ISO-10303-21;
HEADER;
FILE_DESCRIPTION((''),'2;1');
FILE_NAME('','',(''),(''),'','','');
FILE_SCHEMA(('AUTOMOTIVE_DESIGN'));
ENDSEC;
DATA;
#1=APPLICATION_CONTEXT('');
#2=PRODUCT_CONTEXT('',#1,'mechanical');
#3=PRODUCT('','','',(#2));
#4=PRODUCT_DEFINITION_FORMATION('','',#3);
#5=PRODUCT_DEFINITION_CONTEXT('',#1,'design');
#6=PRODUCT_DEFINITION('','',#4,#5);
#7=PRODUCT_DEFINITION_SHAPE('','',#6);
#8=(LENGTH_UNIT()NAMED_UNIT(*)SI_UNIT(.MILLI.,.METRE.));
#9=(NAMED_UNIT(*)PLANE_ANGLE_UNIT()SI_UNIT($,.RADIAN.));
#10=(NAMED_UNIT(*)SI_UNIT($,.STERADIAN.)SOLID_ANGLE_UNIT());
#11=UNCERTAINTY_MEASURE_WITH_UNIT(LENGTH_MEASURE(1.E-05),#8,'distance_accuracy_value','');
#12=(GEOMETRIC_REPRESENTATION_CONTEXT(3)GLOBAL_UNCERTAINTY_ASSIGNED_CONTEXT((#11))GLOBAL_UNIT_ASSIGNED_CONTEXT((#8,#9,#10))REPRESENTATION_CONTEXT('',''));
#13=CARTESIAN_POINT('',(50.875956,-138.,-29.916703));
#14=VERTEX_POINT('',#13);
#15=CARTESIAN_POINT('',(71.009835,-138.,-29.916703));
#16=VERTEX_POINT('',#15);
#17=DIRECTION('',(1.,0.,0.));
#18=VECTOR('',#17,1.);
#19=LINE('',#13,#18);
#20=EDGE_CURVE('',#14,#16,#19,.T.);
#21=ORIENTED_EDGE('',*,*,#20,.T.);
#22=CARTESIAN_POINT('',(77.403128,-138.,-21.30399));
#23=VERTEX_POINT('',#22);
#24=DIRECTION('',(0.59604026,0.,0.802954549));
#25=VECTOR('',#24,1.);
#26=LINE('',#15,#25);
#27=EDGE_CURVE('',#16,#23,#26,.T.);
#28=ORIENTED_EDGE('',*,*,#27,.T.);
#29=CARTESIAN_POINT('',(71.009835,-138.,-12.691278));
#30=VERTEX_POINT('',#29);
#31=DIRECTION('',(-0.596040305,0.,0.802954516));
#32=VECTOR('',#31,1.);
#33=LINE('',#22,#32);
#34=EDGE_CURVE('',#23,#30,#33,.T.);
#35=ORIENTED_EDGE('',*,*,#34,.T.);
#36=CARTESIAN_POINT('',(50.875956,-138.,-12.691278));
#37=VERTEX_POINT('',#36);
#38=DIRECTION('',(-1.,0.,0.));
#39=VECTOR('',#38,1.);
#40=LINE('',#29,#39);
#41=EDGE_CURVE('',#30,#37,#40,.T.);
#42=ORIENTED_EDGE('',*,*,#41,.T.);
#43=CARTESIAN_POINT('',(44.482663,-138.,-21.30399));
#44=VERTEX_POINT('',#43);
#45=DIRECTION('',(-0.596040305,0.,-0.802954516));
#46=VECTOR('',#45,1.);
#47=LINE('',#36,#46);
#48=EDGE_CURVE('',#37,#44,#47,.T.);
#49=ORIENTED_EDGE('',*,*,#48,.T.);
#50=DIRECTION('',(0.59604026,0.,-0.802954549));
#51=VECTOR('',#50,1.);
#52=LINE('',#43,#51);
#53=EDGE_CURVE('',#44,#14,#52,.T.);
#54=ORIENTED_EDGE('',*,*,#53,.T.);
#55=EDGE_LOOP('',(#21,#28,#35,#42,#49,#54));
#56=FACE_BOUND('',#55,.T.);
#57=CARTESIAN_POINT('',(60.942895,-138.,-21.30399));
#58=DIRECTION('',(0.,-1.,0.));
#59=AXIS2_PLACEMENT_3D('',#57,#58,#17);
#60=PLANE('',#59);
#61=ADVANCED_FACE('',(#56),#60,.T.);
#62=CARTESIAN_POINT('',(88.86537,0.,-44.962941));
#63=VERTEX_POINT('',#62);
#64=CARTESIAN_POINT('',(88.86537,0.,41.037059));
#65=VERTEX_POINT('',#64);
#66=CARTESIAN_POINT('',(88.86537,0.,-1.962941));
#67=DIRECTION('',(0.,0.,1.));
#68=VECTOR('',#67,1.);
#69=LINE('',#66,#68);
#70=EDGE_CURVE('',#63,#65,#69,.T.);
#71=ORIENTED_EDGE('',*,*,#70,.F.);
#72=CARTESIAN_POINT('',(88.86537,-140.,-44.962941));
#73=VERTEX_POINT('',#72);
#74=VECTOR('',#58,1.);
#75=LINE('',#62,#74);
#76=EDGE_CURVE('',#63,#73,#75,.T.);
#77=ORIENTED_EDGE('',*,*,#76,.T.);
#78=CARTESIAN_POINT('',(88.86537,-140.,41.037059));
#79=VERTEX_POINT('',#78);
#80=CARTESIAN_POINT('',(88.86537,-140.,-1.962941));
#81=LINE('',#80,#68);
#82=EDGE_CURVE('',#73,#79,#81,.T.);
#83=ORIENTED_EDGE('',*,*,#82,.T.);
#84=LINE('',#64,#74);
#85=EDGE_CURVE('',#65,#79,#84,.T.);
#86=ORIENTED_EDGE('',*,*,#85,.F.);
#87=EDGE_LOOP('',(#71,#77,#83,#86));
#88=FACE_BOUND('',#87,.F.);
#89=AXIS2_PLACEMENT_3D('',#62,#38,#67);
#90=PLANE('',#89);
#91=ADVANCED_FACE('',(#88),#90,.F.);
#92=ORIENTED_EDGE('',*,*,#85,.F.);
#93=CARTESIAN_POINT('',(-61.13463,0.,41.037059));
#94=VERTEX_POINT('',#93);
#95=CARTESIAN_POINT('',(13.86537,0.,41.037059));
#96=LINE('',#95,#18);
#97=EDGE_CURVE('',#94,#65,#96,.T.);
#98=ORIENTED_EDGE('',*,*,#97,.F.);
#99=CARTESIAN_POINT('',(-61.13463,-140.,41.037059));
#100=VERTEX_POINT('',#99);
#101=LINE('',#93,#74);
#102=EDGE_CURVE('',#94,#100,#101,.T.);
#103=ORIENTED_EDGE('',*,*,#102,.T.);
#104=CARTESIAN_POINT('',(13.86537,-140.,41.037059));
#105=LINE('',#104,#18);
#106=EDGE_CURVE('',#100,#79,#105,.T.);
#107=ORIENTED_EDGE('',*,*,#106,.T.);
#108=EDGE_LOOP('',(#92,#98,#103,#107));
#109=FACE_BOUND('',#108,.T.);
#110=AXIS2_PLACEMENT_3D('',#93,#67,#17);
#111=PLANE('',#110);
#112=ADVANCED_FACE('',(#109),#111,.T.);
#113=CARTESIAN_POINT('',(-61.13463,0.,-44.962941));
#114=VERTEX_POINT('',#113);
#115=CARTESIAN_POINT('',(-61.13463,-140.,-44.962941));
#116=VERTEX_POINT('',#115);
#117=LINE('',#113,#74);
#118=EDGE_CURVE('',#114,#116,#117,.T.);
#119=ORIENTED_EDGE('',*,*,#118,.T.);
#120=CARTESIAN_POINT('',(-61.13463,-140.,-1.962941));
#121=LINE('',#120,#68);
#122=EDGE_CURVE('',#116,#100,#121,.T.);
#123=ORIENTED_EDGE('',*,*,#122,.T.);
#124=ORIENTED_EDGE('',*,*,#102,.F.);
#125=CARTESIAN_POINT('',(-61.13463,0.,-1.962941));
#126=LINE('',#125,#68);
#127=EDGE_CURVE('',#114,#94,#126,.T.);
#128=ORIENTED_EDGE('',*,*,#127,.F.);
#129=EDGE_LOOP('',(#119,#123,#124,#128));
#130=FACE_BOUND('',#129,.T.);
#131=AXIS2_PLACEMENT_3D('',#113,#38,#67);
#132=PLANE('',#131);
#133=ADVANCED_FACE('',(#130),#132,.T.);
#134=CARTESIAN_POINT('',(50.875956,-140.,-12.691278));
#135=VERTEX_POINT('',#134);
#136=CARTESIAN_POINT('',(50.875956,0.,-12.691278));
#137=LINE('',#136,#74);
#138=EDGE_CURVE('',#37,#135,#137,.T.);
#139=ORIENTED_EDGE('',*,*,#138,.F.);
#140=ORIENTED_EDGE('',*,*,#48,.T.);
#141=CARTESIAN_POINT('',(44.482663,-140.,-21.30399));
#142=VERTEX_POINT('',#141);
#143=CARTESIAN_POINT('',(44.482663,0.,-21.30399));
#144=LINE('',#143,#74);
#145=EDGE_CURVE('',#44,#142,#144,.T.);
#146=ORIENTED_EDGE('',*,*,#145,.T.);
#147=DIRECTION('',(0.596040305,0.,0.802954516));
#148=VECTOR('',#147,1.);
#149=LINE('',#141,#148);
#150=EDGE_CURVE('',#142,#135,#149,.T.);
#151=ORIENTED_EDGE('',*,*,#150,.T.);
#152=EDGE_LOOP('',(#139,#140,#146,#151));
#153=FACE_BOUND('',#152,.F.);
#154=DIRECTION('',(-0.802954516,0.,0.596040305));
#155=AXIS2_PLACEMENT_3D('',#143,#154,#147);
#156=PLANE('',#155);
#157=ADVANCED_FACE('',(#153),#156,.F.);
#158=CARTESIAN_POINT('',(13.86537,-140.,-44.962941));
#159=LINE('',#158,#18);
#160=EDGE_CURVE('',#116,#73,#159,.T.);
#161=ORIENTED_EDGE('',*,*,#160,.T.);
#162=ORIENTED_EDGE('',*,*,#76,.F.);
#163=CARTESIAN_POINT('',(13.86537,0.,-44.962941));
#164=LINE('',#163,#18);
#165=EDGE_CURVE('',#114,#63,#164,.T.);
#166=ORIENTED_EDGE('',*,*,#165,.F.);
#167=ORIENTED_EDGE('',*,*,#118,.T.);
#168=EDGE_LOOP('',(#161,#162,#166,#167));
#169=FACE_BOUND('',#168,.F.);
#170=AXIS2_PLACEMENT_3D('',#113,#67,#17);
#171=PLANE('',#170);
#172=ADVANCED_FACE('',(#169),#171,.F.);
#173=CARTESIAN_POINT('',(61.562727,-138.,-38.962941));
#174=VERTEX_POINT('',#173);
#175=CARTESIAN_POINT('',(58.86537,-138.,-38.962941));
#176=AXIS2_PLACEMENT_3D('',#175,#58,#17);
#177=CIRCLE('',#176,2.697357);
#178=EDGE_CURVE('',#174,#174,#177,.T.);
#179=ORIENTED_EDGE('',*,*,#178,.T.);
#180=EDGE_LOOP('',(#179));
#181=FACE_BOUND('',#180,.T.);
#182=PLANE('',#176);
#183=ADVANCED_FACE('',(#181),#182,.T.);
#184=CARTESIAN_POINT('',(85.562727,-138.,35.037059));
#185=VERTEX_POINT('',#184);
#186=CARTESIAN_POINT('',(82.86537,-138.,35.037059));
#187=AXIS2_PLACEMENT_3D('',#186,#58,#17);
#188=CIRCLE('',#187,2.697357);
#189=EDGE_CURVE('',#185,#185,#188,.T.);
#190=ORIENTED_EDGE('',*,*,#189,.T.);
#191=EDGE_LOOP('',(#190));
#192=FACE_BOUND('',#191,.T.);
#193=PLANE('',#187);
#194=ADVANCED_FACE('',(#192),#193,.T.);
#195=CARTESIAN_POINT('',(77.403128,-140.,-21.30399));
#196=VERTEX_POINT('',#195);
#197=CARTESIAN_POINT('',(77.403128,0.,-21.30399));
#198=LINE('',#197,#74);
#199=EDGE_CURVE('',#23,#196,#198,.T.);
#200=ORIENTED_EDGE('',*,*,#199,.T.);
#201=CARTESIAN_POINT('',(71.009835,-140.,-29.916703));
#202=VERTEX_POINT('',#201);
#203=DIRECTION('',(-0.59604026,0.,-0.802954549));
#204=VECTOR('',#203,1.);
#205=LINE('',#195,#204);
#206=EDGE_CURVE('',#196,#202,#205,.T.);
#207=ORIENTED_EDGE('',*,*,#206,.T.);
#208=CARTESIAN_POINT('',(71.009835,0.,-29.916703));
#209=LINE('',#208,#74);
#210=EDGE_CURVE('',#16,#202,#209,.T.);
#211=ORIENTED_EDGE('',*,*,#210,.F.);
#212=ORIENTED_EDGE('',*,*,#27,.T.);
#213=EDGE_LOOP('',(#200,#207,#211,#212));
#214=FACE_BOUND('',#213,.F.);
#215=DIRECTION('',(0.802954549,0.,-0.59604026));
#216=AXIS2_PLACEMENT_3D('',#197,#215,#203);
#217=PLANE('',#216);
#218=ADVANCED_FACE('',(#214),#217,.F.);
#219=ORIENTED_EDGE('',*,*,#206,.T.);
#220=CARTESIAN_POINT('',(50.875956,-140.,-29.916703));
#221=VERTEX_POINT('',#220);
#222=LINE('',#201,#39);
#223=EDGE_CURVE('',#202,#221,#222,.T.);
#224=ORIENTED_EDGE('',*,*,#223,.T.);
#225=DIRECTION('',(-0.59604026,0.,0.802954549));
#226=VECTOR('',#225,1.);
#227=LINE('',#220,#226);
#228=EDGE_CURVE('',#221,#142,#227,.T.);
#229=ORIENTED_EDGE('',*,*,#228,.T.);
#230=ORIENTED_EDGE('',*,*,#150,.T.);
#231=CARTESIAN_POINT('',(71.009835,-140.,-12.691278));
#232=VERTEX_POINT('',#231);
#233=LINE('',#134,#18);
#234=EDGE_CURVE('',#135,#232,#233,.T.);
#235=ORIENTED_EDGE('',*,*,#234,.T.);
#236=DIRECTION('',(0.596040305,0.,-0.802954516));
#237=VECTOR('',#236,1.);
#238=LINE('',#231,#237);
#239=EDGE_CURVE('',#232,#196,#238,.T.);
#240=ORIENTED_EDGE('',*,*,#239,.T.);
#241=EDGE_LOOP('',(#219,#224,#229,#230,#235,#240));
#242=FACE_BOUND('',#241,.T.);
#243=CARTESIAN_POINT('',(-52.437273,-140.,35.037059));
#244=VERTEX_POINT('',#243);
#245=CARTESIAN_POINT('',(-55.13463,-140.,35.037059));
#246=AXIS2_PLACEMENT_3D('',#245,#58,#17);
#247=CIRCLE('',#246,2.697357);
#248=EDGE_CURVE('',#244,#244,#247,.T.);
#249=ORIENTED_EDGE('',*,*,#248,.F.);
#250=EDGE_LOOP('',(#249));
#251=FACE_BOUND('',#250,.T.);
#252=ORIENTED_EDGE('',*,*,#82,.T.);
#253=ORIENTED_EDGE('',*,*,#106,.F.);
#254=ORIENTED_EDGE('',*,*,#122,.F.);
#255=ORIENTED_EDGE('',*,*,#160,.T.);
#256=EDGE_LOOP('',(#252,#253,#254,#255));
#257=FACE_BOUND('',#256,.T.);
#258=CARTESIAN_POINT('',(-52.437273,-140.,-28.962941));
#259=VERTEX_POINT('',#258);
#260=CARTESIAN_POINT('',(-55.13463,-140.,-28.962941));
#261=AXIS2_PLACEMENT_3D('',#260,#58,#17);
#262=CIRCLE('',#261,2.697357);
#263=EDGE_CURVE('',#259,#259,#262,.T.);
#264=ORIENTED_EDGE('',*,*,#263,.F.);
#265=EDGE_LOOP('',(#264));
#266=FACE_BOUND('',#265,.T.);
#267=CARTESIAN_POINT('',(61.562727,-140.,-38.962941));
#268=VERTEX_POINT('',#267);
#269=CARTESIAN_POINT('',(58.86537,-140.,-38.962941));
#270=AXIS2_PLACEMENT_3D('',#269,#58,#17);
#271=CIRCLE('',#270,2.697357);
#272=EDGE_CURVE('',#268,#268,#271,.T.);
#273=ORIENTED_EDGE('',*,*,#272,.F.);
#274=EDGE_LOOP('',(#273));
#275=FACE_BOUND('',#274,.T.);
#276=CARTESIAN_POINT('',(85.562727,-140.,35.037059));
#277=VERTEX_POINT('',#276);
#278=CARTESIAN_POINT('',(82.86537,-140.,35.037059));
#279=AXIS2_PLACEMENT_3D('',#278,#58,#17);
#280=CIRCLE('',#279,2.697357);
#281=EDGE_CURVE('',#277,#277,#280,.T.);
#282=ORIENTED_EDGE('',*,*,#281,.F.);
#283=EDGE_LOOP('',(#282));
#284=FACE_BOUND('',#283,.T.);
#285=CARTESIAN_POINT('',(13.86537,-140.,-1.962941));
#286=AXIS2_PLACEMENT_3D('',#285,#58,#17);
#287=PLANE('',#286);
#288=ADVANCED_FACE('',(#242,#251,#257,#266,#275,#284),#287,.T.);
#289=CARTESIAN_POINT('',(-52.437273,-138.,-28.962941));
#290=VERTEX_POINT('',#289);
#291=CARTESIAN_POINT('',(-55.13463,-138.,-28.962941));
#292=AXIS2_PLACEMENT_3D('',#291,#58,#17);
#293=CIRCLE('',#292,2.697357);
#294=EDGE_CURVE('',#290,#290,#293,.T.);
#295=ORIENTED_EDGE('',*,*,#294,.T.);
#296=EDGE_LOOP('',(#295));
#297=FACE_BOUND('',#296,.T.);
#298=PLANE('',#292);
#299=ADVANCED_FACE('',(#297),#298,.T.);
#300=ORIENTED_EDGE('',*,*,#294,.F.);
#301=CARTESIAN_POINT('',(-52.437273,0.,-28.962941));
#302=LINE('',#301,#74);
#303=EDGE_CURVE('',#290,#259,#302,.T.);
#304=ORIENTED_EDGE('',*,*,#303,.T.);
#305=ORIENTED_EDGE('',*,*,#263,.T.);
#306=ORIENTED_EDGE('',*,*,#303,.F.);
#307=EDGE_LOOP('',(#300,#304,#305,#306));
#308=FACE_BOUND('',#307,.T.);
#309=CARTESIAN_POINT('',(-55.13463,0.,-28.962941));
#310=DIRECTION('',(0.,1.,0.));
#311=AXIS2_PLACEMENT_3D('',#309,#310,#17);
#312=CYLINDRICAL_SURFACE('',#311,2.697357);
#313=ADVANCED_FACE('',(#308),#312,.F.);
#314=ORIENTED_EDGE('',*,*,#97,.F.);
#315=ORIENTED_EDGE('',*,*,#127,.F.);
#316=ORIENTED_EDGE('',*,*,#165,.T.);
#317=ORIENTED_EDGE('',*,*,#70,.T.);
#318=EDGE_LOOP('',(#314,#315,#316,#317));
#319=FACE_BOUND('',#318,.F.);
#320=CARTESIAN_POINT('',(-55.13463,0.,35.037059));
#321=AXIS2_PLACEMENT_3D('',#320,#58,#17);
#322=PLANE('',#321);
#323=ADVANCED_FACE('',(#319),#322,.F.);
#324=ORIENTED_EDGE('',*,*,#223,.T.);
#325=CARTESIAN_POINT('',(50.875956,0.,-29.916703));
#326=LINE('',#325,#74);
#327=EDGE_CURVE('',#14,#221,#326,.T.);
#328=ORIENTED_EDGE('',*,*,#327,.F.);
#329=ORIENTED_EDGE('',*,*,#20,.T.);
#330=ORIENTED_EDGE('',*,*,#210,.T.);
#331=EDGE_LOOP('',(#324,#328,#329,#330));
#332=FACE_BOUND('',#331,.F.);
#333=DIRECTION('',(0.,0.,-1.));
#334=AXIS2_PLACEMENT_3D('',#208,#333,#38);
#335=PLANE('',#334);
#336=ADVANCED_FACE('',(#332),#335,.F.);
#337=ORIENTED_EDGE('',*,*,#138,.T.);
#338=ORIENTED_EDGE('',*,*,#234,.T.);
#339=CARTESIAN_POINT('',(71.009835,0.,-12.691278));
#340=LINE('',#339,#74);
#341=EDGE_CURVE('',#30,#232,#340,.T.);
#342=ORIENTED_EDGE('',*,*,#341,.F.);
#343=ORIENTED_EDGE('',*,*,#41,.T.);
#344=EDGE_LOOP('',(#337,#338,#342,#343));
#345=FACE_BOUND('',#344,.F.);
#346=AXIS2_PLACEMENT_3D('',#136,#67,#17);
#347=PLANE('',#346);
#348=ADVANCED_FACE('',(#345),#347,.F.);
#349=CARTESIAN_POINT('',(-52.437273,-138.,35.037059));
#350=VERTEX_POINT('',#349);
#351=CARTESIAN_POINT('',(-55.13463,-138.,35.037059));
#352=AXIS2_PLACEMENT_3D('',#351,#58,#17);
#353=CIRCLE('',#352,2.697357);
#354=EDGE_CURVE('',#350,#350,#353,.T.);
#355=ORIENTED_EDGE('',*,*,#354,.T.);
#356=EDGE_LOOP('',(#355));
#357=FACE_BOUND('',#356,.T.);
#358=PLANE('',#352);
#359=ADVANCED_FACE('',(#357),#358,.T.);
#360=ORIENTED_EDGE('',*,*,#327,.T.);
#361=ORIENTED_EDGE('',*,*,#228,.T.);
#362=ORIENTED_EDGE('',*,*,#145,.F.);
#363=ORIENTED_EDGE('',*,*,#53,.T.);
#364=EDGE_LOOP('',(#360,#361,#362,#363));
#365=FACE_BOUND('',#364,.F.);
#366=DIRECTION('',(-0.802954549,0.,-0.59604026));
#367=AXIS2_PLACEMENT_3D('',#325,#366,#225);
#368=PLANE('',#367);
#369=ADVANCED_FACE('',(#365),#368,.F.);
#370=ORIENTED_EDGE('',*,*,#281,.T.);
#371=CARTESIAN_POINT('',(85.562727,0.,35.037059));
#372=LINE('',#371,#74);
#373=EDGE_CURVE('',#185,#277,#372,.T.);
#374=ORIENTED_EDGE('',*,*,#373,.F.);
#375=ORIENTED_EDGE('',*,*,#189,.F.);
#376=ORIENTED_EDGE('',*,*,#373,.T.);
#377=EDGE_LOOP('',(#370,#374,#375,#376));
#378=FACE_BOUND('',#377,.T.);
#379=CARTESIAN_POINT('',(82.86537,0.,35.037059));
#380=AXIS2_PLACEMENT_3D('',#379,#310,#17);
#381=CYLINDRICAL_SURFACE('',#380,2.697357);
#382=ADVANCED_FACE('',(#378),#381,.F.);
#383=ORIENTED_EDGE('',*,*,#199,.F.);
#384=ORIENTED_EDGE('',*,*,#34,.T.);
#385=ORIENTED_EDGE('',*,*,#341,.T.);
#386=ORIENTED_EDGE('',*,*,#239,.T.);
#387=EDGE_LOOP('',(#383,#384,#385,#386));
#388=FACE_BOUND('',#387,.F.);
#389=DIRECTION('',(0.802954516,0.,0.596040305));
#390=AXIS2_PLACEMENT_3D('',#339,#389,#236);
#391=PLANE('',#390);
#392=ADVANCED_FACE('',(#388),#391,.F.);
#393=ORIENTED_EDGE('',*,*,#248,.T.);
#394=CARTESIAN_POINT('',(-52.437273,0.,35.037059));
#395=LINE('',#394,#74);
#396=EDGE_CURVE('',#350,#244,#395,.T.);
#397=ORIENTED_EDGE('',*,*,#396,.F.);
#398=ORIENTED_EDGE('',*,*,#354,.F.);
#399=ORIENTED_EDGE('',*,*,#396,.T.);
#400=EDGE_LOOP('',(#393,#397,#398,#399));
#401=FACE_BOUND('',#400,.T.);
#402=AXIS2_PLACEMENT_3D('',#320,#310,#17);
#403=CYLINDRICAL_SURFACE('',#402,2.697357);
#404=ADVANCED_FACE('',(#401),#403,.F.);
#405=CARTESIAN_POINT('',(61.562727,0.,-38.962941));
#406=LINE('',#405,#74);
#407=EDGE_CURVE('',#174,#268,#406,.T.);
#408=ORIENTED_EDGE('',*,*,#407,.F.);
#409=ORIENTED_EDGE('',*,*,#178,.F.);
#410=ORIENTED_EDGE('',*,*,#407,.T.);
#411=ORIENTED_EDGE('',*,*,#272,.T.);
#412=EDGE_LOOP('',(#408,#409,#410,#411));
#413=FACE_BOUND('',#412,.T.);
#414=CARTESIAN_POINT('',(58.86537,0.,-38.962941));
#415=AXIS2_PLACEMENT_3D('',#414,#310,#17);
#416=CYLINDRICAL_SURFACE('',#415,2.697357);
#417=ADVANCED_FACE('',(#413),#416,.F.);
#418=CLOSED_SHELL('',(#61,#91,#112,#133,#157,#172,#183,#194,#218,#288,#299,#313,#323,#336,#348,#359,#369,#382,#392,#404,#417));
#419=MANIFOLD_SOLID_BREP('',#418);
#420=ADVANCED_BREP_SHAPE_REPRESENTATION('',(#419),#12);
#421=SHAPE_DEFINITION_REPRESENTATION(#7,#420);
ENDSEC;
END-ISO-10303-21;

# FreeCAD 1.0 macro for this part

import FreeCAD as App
import Part
import Sketcher


def add_polygon(sketch, points):
    """Adds a closed chain of lines whose ends are joined by coincident constraints."""
    first, n = sketch.GeometryCount, len(points)
    for a, b in zip(points, points[1:] + points[:1]):
        sketch.addGeometry(Part.LineSegment(App.Vector(*a, 0), App.Vector(*b, 0)), False)
    for i in range(n):
        sketch.addConstraint(Sketcher.Constraint("Coincident", first + i, 2, first + (i + 1) % n, 1))

doc = App.newDocument("Part")
body = doc.addObject("PartDesign::Body", "Body")

# Sketch on XZ plane
sketch1 = body.newObject("Sketcher::SketchObject", "Sketch")
sketch1.AttachmentSupport = (doc.getObject("XZ_Plane"), [""])
sketch1.MapMode = "FlatFace"
add_polygon(sketch1, [(-61.1, 41), (-61.1, -45), (88.9, -45), (88.9, 41)])  # lines 0-3
sketch1.addGeometry(Part.Circle(App.Vector(-55.1, -29, 0), App.Vector(0, 0, 1), 2.7), False)  # 4
sketch1.addGeometry(Part.Circle(App.Vector(58.9, -39, 0), App.Vector(0, 0, 1), 2.7), False)  # 5
add_polygon(sketch1, [(77.4, -21.3), (71, -29.9), (50.9, -29.9), (44.5, -21.3), (50.9, -12.7), (71, -12.7)])  # lines 6-11
sketch1.addGeometry(Part.Circle(App.Vector(-55.1, 35, 0), App.Vector(0, 0, 1), 2.7), False)  # 12
sketch1.addGeometry(Part.Circle(App.Vector(82.9, 35, 0), App.Vector(0, 0, 1), 2.7), False)  # 13
sketch1.addConstraint([
    Sketcher.Constraint("Vertical", 0),
    Sketcher.Constraint("Horizontal", 1),
    Sketcher.Constraint("Vertical", 2),
    Sketcher.Constraint("Horizontal", 3),
    Sketcher.Constraint("Horizontal", 7),
    Sketcher.Constraint("Horizontal", 10),
    Sketcher.Constraint("Equal", 4, 5),
    Sketcher.Constraint("Equal", 5, 12),
    Sketcher.Constraint("Equal", 12, 13),
    Sketcher.Constraint("Parallel", 6, 9),
    Sketcher.Constraint("Parallel", 8, 11),
    Sketcher.Constraint("Horizontal", 12, 3, 13, 3),
    Sketcher.Constraint("Horizontal", 8, 2, 11, 2),
    Sketcher.Constraint("Vertical", 4, 3, 12, 3),
    Sketcher.Constraint("Vertical", 7, 2, 9, 2),
    Sketcher.Constraint("Vertical", 6, 2, 10, 2),
    Sketcher.Constraint("DistanceX", 1, 1, 1, 2, 150.0),
    Sketcher.Constraint("DistanceY", 0, 2, 0, 1, 86.0),
    Sketcher.Constraint("DistanceX", 4, 3, 5, 3, 114.0),
    Sketcher.Constraint("DistanceY", 5, 3, 4, 3, 10.0),
    Sketcher.Constraint("DistanceY", 4, 3, 12, 3, 64.0),
    Sketcher.Constraint("DistanceX", 5, 3, 13, 3, 24.0),
    Sketcher.Constraint("DistanceX", 0, 2, 4, 3, 6.0),
    Sketcher.Constraint("DistanceY", 0, 2, 4, 3, 16.0),
    Sketcher.Constraint("Diameter", 4, 5.394714),
    Sketcher.Constraint("DistanceX", 7, 2, 7, 1, 20.133879),
    Sketcher.Constraint("DistanceX", 4, 3, -1, 1, 55.13463),
    Sketcher.Constraint("DistanceY", 4, 3, -1, 1, 28.962941),
    Sketcher.Constraint("DistanceY", 8, 2, -1, 1, 21.30399),
    Sketcher.Constraint("DistanceY", 5, 3, 6, 2, 9.046238),
    Sketcher.Constraint("DistanceX", 8, 2, 6, 2, 26.527172),
    Sketcher.Constraint("DistanceX", -1, 1, 6, 2, 71.009835),
])
pad1 = body.newObject("PartDesign::Pad", "Pad")
pad1.Profile = sketch1
pad1.Length = 140

# Sketch on XZ plane
sketch2 = body.newObject("Sketcher::SketchObject", "Sketch001")
sketch2.AttachmentSupport = (doc.getObject("XZ_Plane"), [""])
sketch2.MapMode = "FlatFace"
sketch2.addGeometry(Part.Circle(App.Vector(-55.1, 35, 0), App.Vector(0, 0, 1), 2.7), False)  # 0
sketch2.addGeometry(Part.Circle(App.Vector(-55.1, -29, 0), App.Vector(0, 0, 1), 2.7), False)  # 1
sketch2.addGeometry(Part.Circle(App.Vector(58.9, -39, 0), App.Vector(0, 0, 1), 2.7), False)  # 2
add_polygon(sketch2, [(44.5, -21.3), (50.9, -29.9), (71, -29.9), (77.4, -21.3), (71, -12.7), (50.9, -12.7)])  # lines 3-8
sketch2.addGeometry(Part.Circle(App.Vector(82.9, 35, 0), App.Vector(0, 0, 1), 2.7), False)  # 9
sketch2.addConstraint([
    Sketcher.Constraint("Horizontal", 4),
    Sketcher.Constraint("Horizontal", 7),
    Sketcher.Constraint("Equal", 0, 1),
    Sketcher.Constraint("Equal", 1, 2),
    Sketcher.Constraint("Equal", 2, 9),
    Sketcher.Constraint("Parallel", 3, 6),
    Sketcher.Constraint("Parallel", 5, 8),
    Sketcher.Constraint("Horizontal", 0, 3, 9, 3),
    Sketcher.Constraint("Horizontal", 5, 2, 8, 2),
    Sketcher.Constraint("Vertical", 0, 3, 1, 3),
    Sketcher.Constraint("Vertical", 4, 2, 6, 2),
    Sketcher.Constraint("Vertical", 3, 2, 7, 2),
    Sketcher.Constraint("DistanceY", 1, 3, 0, 3, 64.0),
    Sketcher.Constraint("DistanceX", 1, 3, 2, 3, 114.0),
    Sketcher.Constraint("DistanceY", 2, 3, 1, 3, 10.0),
    Sketcher.Constraint("DistanceX", 2, 3, 9, 3, 24.0),
    Sketcher.Constraint("Diameter", 0, 5.394714),
    Sketcher.Constraint("DistanceX", 4, 1, 4, 2, 20.133879),
    Sketcher.Constraint("DistanceX", 0, 3, -1, 1, 55.13463),
    Sketcher.Constraint("DistanceY", -1, 1, 0, 3, 35.037059),
    Sketcher.Constraint("DistanceY", 5, 2, -1, 1, 21.30399),
    Sketcher.Constraint("DistanceY", 2, 3, 3, 2, 9.046238),
    Sketcher.Constraint("DistanceX", 3, 2, 5, 2, 26.527172),
    Sketcher.Constraint("DistanceX", 1, 3, 5, 2, 132.537758),
])
pad2 = body.newObject("PartDesign::Pad", "Pad001")
pad2.Profile = sketch2
pad2.Length = 138

doc.recompute()
